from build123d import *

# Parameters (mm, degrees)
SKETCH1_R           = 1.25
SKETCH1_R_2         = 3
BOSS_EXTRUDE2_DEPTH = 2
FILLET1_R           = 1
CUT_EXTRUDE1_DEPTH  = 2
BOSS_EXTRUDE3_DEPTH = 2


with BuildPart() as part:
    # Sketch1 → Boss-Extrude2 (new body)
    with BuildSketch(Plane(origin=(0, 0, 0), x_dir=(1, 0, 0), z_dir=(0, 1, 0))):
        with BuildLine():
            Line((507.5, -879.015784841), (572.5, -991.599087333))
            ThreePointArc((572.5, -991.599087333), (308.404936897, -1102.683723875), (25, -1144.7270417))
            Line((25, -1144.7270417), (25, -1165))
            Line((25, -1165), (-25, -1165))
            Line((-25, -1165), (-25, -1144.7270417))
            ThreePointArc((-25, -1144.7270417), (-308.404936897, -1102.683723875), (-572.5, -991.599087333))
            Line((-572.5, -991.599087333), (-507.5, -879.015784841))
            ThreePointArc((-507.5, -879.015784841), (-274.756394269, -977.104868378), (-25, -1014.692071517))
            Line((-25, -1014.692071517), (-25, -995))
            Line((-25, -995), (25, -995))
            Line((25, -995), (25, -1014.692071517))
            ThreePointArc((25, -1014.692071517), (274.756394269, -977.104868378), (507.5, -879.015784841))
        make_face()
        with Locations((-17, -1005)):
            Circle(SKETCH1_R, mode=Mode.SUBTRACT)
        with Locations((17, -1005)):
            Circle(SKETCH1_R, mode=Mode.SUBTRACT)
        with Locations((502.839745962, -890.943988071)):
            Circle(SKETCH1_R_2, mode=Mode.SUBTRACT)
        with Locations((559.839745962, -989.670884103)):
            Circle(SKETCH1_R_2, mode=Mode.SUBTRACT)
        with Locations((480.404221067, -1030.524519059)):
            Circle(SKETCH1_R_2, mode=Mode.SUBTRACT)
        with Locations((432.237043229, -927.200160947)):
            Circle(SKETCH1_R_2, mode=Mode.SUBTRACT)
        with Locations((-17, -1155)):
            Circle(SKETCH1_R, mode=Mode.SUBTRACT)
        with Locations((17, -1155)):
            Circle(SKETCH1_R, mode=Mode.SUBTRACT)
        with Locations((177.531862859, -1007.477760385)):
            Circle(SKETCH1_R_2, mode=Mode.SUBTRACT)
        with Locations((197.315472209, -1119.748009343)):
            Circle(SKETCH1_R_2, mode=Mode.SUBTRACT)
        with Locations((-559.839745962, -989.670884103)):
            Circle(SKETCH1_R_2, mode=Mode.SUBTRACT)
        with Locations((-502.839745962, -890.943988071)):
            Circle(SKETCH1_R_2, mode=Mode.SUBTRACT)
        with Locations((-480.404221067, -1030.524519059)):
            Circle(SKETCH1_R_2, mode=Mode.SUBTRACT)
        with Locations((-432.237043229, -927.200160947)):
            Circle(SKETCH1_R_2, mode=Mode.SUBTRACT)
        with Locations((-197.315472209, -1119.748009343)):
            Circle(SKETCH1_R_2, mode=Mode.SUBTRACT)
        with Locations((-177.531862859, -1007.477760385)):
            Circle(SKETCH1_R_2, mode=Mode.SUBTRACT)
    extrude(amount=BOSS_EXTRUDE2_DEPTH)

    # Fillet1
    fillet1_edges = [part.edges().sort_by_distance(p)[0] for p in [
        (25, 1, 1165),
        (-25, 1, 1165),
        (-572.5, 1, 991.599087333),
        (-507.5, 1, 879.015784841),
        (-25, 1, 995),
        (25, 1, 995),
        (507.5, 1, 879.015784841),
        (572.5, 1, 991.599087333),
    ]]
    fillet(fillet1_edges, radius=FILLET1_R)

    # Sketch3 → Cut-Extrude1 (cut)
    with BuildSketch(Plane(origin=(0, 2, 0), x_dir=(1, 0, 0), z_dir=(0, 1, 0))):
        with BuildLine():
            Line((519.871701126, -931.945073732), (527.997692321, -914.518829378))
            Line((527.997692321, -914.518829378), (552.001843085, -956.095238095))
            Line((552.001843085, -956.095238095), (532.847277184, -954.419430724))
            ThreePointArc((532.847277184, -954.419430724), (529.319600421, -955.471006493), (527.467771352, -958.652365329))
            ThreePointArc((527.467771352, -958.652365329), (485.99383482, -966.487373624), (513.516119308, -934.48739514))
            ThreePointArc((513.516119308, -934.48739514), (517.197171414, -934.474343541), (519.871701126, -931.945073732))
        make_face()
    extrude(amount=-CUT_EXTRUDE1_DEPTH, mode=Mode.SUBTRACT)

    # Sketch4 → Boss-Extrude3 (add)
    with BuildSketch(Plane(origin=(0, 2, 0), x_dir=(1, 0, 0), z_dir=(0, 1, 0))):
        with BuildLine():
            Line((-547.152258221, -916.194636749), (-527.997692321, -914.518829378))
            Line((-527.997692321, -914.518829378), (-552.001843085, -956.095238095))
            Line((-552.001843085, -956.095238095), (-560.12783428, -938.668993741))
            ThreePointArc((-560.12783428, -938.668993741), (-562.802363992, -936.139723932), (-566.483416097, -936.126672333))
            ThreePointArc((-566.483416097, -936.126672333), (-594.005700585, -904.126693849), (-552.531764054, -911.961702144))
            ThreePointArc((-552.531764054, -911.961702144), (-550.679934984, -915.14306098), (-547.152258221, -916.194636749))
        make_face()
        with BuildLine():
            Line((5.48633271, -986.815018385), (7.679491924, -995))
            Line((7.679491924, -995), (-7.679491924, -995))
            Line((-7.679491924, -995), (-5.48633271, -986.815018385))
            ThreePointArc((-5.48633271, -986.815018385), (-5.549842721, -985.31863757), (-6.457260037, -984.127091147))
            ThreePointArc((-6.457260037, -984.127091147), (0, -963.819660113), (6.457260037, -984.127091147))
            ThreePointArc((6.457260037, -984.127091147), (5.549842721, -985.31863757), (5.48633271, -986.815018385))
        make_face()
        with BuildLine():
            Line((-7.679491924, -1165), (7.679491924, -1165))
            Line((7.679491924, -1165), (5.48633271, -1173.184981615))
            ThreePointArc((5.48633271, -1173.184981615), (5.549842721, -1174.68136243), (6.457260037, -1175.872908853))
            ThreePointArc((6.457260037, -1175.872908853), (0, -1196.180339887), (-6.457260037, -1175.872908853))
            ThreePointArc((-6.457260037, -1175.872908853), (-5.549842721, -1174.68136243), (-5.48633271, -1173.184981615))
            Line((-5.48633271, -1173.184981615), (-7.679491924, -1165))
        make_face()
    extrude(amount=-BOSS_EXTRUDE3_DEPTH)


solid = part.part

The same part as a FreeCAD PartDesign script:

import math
import FreeCAD as App
import Part
import Sketcher
Q = App.Units.Quantity


def edges_at(feature, points):
    """Names of the edges that pass closest to the given points."""
    edges = feature.Shape.Edges
    near = lambda p: min(range(len(edges)), key=lambda i: edges[i].distToShape(Part.Vertex(*p))[0])
    return sorted({f"Edge{near(p) + 1}" for p in points})

doc = App.newDocument("Part")
params = doc.addObject("Spreadsheet::Sheet", "Params")
for row, (alias, value) in enumerate([
    ("sketch1_diameter", "6 mm"),
    ("sketch1_radius", "1015 mm"),
    ("sketch1_radius2", "1145 mm"),
    ("sketch1_diameter2", "2.5 mm"),
    ("sketch1_width", "50 mm"),
    ("pad1_length", "2 mm"),
    ("fillet_radius", "1 mm"),
    ("sketch2_radius", "5 mm"),
    ("pocket1_length", "2 mm"),
    ("sketch3_radius", "5 mm"),
    ("sketch3_radius2", "2.5 mm"),
    ("pad2_length", "2 mm"),
], start=1):
    params.set(f"A{row}", alias)
    params.set(f"B{row}", "=" + value)
    params.setAlias(f"B{row}", alias)

body = doc.addObject("PartDesign::Body", "Body")

# Sketch on XZ plane
sketch1 = body.newObject("Sketcher::SketchObject", "Sketch")
sketch1.AttachmentSupport = (doc.getObject("XZ_Plane"), [""])
sketch1.MapMode = "FlatFace"
sketch1.addGeometry([
    Part.LineSegment(App.Vector(572.5, 991.6, 0), App.Vector(507.5, 879, 0)),  # 0
    Part.ArcOfCircle(Part.Circle(App.Vector(0, 0, 0), App.Vector(0, 0, 1), 1015), math.radians(60), math.radians(89)),  # 1
    Part.LineSegment(App.Vector(25, 1014.7, 0), App.Vector(25, 995, 0)),  # 2
    Part.LineSegment(App.Vector(25, 995, 0), App.Vector(-25, 995, 0)),  # 3
    Part.LineSegment(App.Vector(-25, 995, 0), App.Vector(-25, 1014.7, 0)),  # 4
    Part.ArcOfCircle(Part.Circle(App.Vector(0, 0, 0), App.Vector(0, 0, 1), 1015), math.radians(91), math.radians(120)),  # 5
    Part.LineSegment(App.Vector(-507.5, 879, 0), App.Vector(-572.5, 991.6, 0)),  # 6
    Part.ArcOfCircle(Part.Circle(App.Vector(0, 0, 0), App.Vector(0, 0, 1), 1145), math.radians(91), math.radians(120)),  # 7
    Part.LineSegment(App.Vector(-25, 1144.7, 0), App.Vector(-25, 1165, 0)),  # 8
    Part.LineSegment(App.Vector(-25, 1165, 0), App.Vector(25, 1165, 0)),  # 9
    Part.LineSegment(App.Vector(25, 1165, 0), App.Vector(25, 1144.7, 0)),  # 10
    Part.ArcOfCircle(Part.Circle(App.Vector(0, 0, 0), App.Vector(0, 0, 1), 1145), math.radians(60), math.radians(89)),  # 11
    Part.Circle(App.Vector(17, 1155, 0), App.Vector(0, 0, 1), 1.2),  # 12
    Part.Circle(App.Vector(197.3, 1119.7, 0), App.Vector(0, 0, 1), 3),  # 13
    Part.Circle(App.Vector(480.4, 1030.5, 0), App.Vector(0, 0, 1), 3),  # 14
    Part.Circle(App.Vector(-17, 1155, 0), App.Vector(0, 0, 1), 1.2),  # 15
    Part.Circle(App.Vector(-197.3, 1119.7, 0), App.Vector(0, 0, 1), 3),  # 16
    Part.Circle(App.Vector(-480.4, 1030.5, 0), App.Vector(0, 0, 1), 3),  # 17
    Part.Circle(App.Vector(559.8, 989.7, 0), App.Vector(0, 0, 1), 3),  # 18
    Part.Circle(App.Vector(177.5, 1007.5, 0), App.Vector(0, 0, 1), 3),  # 19
    Part.Circle(App.Vector(17, 1005, 0), App.Vector(0, 0, 1), 1.2),  # 20
    Part.Circle(App.Vector(432.2, 927.2, 0), App.Vector(0, 0, 1), 3),  # 21
    Part.Circle(App.Vector(502.8, 890.9, 0), App.Vector(0, 0, 1), 3),  # 22
    Part.Circle(App.Vector(-17, 1005, 0), App.Vector(0, 0, 1), 1.2),  # 23
    Part.Circle(App.Vector(-177.5, 1007.5, 0), App.Vector(0, 0, 1), 3),  # 24
    Part.Circle(App.Vector(-559.8, 989.7, 0), App.Vector(0, 0, 1), 3),  # 25
    Part.Circle(App.Vector(-432.2, 927.2, 0), App.Vector(0, 0, 1), 3),  # 26
    Part.Circle(App.Vector(-502.8, 890.9, 0), App.Vector(0, 0, 1), 3),  # 27
], False)
sketch1.addConstraint([
    Sketcher.Constraint("Coincident", 0, 2, 1, 1),
    Sketcher.Constraint("Coincident", 1, 2, 2, 1),
    Sketcher.Constraint("Coincident", 2, 2, 3, 1),
    Sketcher.Constraint("Coincident", 3, 2, 4, 1),
    Sketcher.Constraint("Coincident", 4, 2, 5, 1),
    Sketcher.Constraint("Coincident", 5, 2, 6, 1),
    Sketcher.Constraint("Coincident", 6, 2, 7, 2),
    Sketcher.Constraint("Coincident", 7, 1, 8, 1),
    Sketcher.Constraint("Coincident", 8, 2, 9, 1),
    Sketcher.Constraint("Coincident", 9, 2, 10, 1),
    Sketcher.Constraint("Coincident", 10, 2, 11, 2),
    Sketcher.Constraint("Coincident", 11, 1, 0, 1),
    Sketcher.Constraint("Vertical", 2),
    Sketcher.Constraint("Horizontal", 3),
    Sketcher.Constraint("Vertical", 4),
    Sketcher.Constraint("Vertical", 8),
    Sketcher.Constraint("Horizontal", 9),
    Sketcher.Constraint("Vertical", 10),
    Sketcher.Constraint("Coincident", 1, 3, -1, 1),
    Sketcher.Constraint("Coincident", 5, 3, -1, 1),
    Sketcher.Constraint("Coincident", 7, 3, -1, 1),
    Sketcher.Constraint("Coincident", 11, 3, -1, 1),
    Sketcher.Constraint("Equal", 1, 5),
    Sketcher.Constraint("Equal", 7, 11),
    Sketcher.Constraint("Equal", 13, 14),
    Sketcher.Constraint("Equal", 12, 15),
    Sketcher.Constraint("Equal", 14, 16),
    Sketcher.Constraint("Equal", 16, 17),
    Sketcher.Constraint("Equal", 17, 18),
    Sketcher.Constraint("Equal", 18, 19),
    Sketcher.Constraint("Equal", 15, 20),
    Sketcher.Constraint("Equal", 19, 21),
    Sketcher.Constraint("Equal", 21, 22),
    Sketcher.Constraint("Equal", 20, 23),
    Sketcher.Constraint("Equal", 22, 24),
    Sketcher.Constraint("Equal", 24, 25),
    Sketcher.Constraint("Equal", 25, 26),
    Sketcher.Constraint("Equal", 26, 27),
    Sketcher.Constraint("Symmetric", 12, 3, 15, 3, -2),
    Sketcher.Constraint("Symmetric", 13, 3, 16, 3, -2),
    Sketcher.Constraint("Symmetric", 14, 3, 17, 3, -2),
    Sketcher.Constraint("Symmetric", 20, 3, 23, 3, -2),
    Sketcher.Constraint("Symmetric", 19, 3, 24, 3, -2),
    Sketcher.Constraint("Symmetric", 18, 3, 25, 3, -2),
    Sketcher.Constraint("Symmetric", 21, 3, 26, 3, -2),
    Sketcher.Constraint("Symmetric", 22, 3, 27, 3, -2),
    Sketcher.Constraint("Vertical", 12, 3, 20, 3),
    Sketcher.Constraint("Vertical", 2, 2, 9, 2),
    Sketcher.Constraint("Equal", 3, 9),
    Sketcher.Constraint("Equal", 2, 4),
    Sketcher.Constraint("Diameter", 13, Q("6 mm")),
    Sketcher.Constraint("Radius", 1, Q("1015 mm")),
    Sketcher.Constraint("Radius", 7, Q("1145 mm")),
    Sketcher.Constraint("Diameter", 12, Q("2.5 mm")),
    Sketcher.Constraint("DistanceX", 3, 2, 3, 1, Q("50 mm")),
    Sketcher.Constraint("Angle", 0, Q("-120 deg")),
    Sketcher.Constraint("Angle", 6, Q("120 deg")),
    Sketcher.Constraint("DistanceX", -1, 1, 12, 3, Q("17 mm")),
    Sketcher.Constraint("DistanceY", -1, 1, 12, 3, Q("1155 mm")),
    Sketcher.Constraint("DistanceY", -1, 1, 20, 3, Q("1005 mm")),
    Sketcher.Constraint("DistanceY", -1, 1, 2, 2, Q("995 mm")),
    Sketcher.Constraint("DistanceY", -1, 1, 8, 2, Q("1165 mm")),
    Sketcher.Constraint("DistanceX", 22, 3, 18, 3, Q("57 mm")),
    Sketcher.Constraint("DistanceX", -1, 1, 0, 2, Q("507.5 mm")),
    Sketcher.Constraint("DistanceX", 6, 2, -1, 1, Q("572.5 mm")),
    Sketcher.Constraint("DistanceY", 21, 3, 19, 3, Q("80.277599 mm")),
    Sketcher.Constraint("DistanceY", 0, 2, 18, 3, Q("110.655099 mm")),
    Sketcher.Constraint("DistanceY", 27, 3, 6, 2, Q("100.655099 mm")),
    Sketcher.Constraint("DistanceY", -1, 1, 13, 3, Q("1119.748009 mm")),
    Sketcher.Constraint("DistanceX", -1, 1, 14, 3, Q("480.404221 mm")),
    Sketcher.Constraint("DistanceY", -1, 1, 14, 3, Q("1030.524519 mm")),
    Sketcher.Constraint("DistanceY", -1, 1, 19, 3, Q("1007.47776 mm")),
    Sketcher.Constraint("DistanceX", 13, 3, 14, 3, Q("283.088749 mm")),
    Sketcher.Constraint("DistanceX", 16, 3, 18, 3, Q("757.155218 mm")),
    Sketcher.Constraint("DistanceX", 19, 3, 13, 3, Q("19.783609 mm")),
    Sketcher.Constraint("DistanceX", 19, 3, 21, 3, Q("254.70518 mm")),
])
sketch1.setExpression("Constraints[50]", "Params.sketch1_diameter")
sketch1.setExpression("Constraints[51]", "Params.sketch1_radius")
sketch1.setExpression("Constraints[52]", "Params.sketch1_radius2")
sketch1.setExpression("Constraints[53]", "Params.sketch1_diameter2")
sketch1.setExpression("Constraints[54]", "Params.sketch1_width")
pad1 = body.newObject("PartDesign::Pad", "Pad")
pad1.Profile = sketch1
pad1.setExpression("Length", "Params.pad1_length")
pad1.Reversed = True
doc.recompute()

fillet = body.newObject("PartDesign::Fillet", "Fillet")
fillet.Base = (pad1, edges_at(pad1, [
    (25, 1, 1165),
    (-25, 1, 1165),
    (-572.5, 1, 991.599),
    (-507.5, 1, 879.016),
    (-25, 1, 995),
    (25, 1, 995),
    (507.5, 1, 879.016),
    (572.5, 1, 991.599),
]))
fillet.setExpression("Radius", "Params.fillet_radius")

# Sketch on XZ plane
sketch2 = body.newObject("Sketcher::SketchObject", "Sketch001")
sketch2.AttachmentSupport = (doc.getObject("XZ_Plane"), [""])
sketch2.MapMode = "FlatFace"
sketch2.AttachmentOffset = App.Placement(App.Vector(0, 0, -2), App.Rotation())
sketch2.addGeometry([
    Part.LineSegment(App.Vector(528, 914.5, 0), App.Vector(519.9, 931.9, 0)),  # 0
    Part.ArcOfCircle(Part.Circle(App.Vector(515.3, 929.8, 0), App.Vector(0, 0, 1), 5), math.radians(25), math.radians(111)),  # 1
    Part.ArcOfCircle(Part.Circle(App.Vector(505.4, 955.3, 0), App.Vector(0, 0, 1), 22.4), math.radians(9), math.radians(291)),  # 2
    Part.ArcOfCircle(Part.Circle(App.Vector(532.4, 959.4, 0), App.Vector(0, 0, 1), 5), math.radians(-171), math.radians(-85)),  # 3
    Part.LineSegment(App.Vector(532.8, 954.4, 0), App.Vector(552, 956.1, 0)),  # 4
    Part.LineSegment(App.Vector(552, 956.1, 0), App.Vector(528, 914.5, 0)),  # 5
], False)
sketch2.addConstraint([
    Sketcher.Constraint("Tangent", 0, 2, 1, 1),
    Sketcher.Constraint("Tangent", 1, 2, 2, 2),
    Sketcher.Constraint("Tangent", 2, 1, 3, 1),
    Sketcher.Constraint("Tangent", 3, 2, 4, 1),
    Sketcher.Constraint("Coincident", 4, 2, 5, 1),
    Sketcher.Constraint("Coincident", 5, 2, 0, 1),
    Sketcher.Constraint("Equal", 1, 3),
    Sketcher.Constraint("Equal", 0, 4),
    Sketcher.Constraint("Radius", 1, Q("5 mm")),
    Sketcher.Constraint("Angle", 0, Q("115 deg")),
    Sketcher.Constraint("Angle", 4, Q("5 deg")),
    Sketcher.Constraint("Angle", 5, Q("-120 deg")),
    Sketcher.Constraint("Radius", 2, Q("22.36068 mm")),
    Sketcher.Constraint("Distance", 5, Q("48.008302 mm")),
    Sketcher.Constraint("DistanceX", -1, 1, 3, 3, Q("532.411498 mm")),
    Sketcher.Constraint("DistanceX", -1, 1, 0, 2, Q("519.871701 mm")),
    Sketcher.Constraint("DistanceY", -1, 1, 3, 2, Q("954.419431 mm")),
])
sketch2.setExpression("Constraints[8]", "Params.sketch2_radius")
pocket1 = body.newObject("PartDesign::Pocket", "Pocket")
pocket1.Profile = sketch2
pocket1.setExpression("Length", "Params.pocket1_length")
pocket1.Reversed = True

# Sketch on XZ plane
sketch3 = body.newObject("Sketcher::SketchObject", "Sketch002")
sketch3.AttachmentSupport = (doc.getObject("XZ_Plane"), [""])
sketch3.MapMode = "FlatFace"
sketch3.AttachmentOffset = App.Placement(App.Vector(0, 0, -2), App.Rotation())
sketch3.addGeometry([
    Part.LineSegment(App.Vector(-528, 914.5, 0), App.Vector(-547.2, 916.2, 0)),  # 0
    Part.ArcOfCircle(Part.Circle(App.Vector(-547.6, 911.2, 0), App.Vector(0, 0, 1), 5), math.radians(85), math.radians(171)),  # 1
    Part.ArcOfCircle(Part.Circle(App.Vector(-574.6, 915.3, 0), App.Vector(0, 0, 1), 22.4), math.radians(69), math.radians(351)),  # 2
    Part.ArcOfCircle(Part.Circle(App.Vector(-564.7, 940.8, 0), App.Vector(0, 0, 1), 5), math.radians(-111), math.radians(-25)),  # 3
    Part.LineSegment(App.Vector(-560.1, 938.7, 0), App.Vector(-552, 956.1, 0)),  # 4
    Part.LineSegment(App.Vector(-552, 956.1, 0), App.Vector(-528, 914.5, 0)),  # 5
    Part.LineSegment(App.Vector(7.7, 995, 0), App.Vector(5.5, 986.8, 0)),  # 6
    Part.ArcOfCircle(Part.Circle(App.Vector(7.9, 986.2, 0), App.Vector(0, 0, 1), 2.5), math.radians(165), math.radians(235)),  # 7
    Part.ArcOfCircle(Part.Circle(App.Vector(0, 975, 0), App.Vector(0, 0, 1), 11.2), math.radians(125), math.radians(415)),  # 8
    Part.ArcOfCircle(Part.Circle(App.Vector(-7.9, 986.2, 0), App.Vector(0, 0, 1), 2.5), math.radians(-55), math.radians(15)),  # 9
    Part.LineSegment(App.Vector(-5.5, 986.8, 0), App.Vector(-7.7, 995, 0)),  # 10
    Part.LineSegment(App.Vector(-7.7, 995, 0), App.Vector(7.7, 995, 0)),  # 11
    Part.LineSegment(App.Vector(7.7, 1165, 0), App.Vector(-7.7, 1165, 0)),  # 12
    Part.LineSegment(App.Vector(-7.7, 1165, 0), App.Vector(-5.5, 1173.2, 0)),  # 13
    Part.ArcOfCircle(Part.Circle(App.Vector(-7.9, 1173.8, 0), App.Vector(0, 0, 1), 2.5), math.radians(-15), math.radians(55)),  # 14
    Part.ArcOfCircle(Part.Circle(App.Vector(0, 1185, 0), App.Vector(0, 0, 1), 11.2), math.radians(-55), math.radians(235)),  # 15
    Part.ArcOfCircle(Part.Circle(App.Vector(7.9, 1173.8, 0), App.Vector(0, 0, 1), 2.5), math.radians(125), math.radians(195)),  # 16
    Part.LineSegment(App.Vector(5.5, 1173.2, 0), App.Vector(7.7, 1165, 0)),  # 17
], False)
sketch3.addConstraint([
    Sketcher.Constraint("Tangent", 0, 2, 1, 1),
    Sketcher.Constraint("Tangent", 1, 2, 2, 2),
    Sketcher.Constraint("Tangent", 2, 1, 3, 1),
    Sketcher.Constraint("Tangent", 3, 2, 4, 1),
    Sketcher.Constraint("Coincident", 4, 2, 5, 1),
    Sketcher.Constraint("Coincident", 5, 2, 0, 1),
    Sketcher.Constraint("Tangent", 6, 2, 7, 1),
    Sketcher.Constraint("Tangent", 7, 2, 8, 2),
    Sketcher.Constraint("Tangent", 8, 1, 9, 1),
    Sketcher.Constraint("Tangent", 9, 2, 10, 1),
    Sketcher.Constraint("Coincident", 10, 2, 11, 1),
    Sketcher.Constraint("Coincident", 11, 2, 6, 1),
    Sketcher.Constraint("Coincident", 12, 2, 13, 1),
    Sketcher.Constraint("Tangent", 13, 2, 14, 1),
    Sketcher.Constraint("Tangent", 14, 2, 15, 2),
    Sketcher.Constraint("Tangent", 15, 1, 16, 1),
    Sketcher.Constraint("Tangent", 16, 2, 17, 1),
    Sketcher.Constraint("Coincident", 17, 2, 12, 1),
    Sketcher.Constraint("Horizontal", 11),
    Sketcher.Constraint("Horizontal", 12),
    Sketcher.Constraint("Equal", 1, 3),
    Sketcher.Constraint("Equal", 7, 9),
    Sketcher.Constraint("Equal", 9, 14),
    Sketcher.Constraint("Equal", 8, 15),
    Sketcher.Constraint("Equal", 14, 16),
    Sketcher.Constraint("Symmetric", 7, 3, 9, 3, -2),
    Sketcher.Constraint("Symmetric", 14, 3, 16, 3, -2),
    Sketcher.Constraint("Parallel", 6, 13),
    Sketcher.Constraint("Parallel", 10, 17),
    Sketcher.Constraint("Horizontal", 6, 2, 9, 2),
    Sketcher.Constraint("Vertical", 9, 3, 14, 3),
    Sketcher.Constraint("Vertical", 10, 2, 12, 2),
    Sketcher.Constraint("Equal", 0, 4),
    Sketcher.Constraint("Radius", 1, Q("5 mm")),
    Sketcher.Constraint("Radius", 7, Q("2.5 mm")),
    Sketcher.Constraint("Angle", 0, Q("175 deg")),
    Sketcher.Constraint("Angle", 4, Q("65 deg")),
    Sketcher.Constraint("Angle", 5, Q("-60 deg")),
    Sketcher.Constraint("Angle", 6, Q("-105 deg")),
    Sketcher.Constraint("DistanceY", -1, 1, 8, 3, Q("975 mm")),
    Sketcher.Constraint("DistanceY", -1, 1, 15, 3, Q("1185 mm")),
    Sketcher.Constraint("DistanceY", -1, 1, 10, 2, Q("995 mm")),
    Sketcher.Constraint("Radius", 2, Q("22.36068 mm")),
    Sketcher.Constraint("Radius", 8, Q("11.18034 mm")),
    Sketcher.Constraint("Distance", 5, Q("48.008302 mm")),
    Sketcher.Constraint("DistanceY", 0, 2, 4, 2, Q("39.900601 mm")),
    Sketcher.Constraint("DistanceX", 11, 1, 11, 2, Q("15.358984 mm")),
    Sketcher.Constraint("DistanceX", 0, 2, -1, 1, Q("547.152258 mm")),
    Sketcher.Constraint("DistanceY", -1, 1, 4, 2, Q("956.095238 mm")),
])
sketch3.setExpression("Constraints[33]", "Params.sketch3_radius")
sketch3.setExpression("Constraints[34]", "Params.sketch3_radius2")
pad2 = body.newObject("PartDesign::Pad", "Pad001")
pad2.Profile = sketch3
pad2.setExpression("Length", "Params.pad2_length")

doc.recompute()
